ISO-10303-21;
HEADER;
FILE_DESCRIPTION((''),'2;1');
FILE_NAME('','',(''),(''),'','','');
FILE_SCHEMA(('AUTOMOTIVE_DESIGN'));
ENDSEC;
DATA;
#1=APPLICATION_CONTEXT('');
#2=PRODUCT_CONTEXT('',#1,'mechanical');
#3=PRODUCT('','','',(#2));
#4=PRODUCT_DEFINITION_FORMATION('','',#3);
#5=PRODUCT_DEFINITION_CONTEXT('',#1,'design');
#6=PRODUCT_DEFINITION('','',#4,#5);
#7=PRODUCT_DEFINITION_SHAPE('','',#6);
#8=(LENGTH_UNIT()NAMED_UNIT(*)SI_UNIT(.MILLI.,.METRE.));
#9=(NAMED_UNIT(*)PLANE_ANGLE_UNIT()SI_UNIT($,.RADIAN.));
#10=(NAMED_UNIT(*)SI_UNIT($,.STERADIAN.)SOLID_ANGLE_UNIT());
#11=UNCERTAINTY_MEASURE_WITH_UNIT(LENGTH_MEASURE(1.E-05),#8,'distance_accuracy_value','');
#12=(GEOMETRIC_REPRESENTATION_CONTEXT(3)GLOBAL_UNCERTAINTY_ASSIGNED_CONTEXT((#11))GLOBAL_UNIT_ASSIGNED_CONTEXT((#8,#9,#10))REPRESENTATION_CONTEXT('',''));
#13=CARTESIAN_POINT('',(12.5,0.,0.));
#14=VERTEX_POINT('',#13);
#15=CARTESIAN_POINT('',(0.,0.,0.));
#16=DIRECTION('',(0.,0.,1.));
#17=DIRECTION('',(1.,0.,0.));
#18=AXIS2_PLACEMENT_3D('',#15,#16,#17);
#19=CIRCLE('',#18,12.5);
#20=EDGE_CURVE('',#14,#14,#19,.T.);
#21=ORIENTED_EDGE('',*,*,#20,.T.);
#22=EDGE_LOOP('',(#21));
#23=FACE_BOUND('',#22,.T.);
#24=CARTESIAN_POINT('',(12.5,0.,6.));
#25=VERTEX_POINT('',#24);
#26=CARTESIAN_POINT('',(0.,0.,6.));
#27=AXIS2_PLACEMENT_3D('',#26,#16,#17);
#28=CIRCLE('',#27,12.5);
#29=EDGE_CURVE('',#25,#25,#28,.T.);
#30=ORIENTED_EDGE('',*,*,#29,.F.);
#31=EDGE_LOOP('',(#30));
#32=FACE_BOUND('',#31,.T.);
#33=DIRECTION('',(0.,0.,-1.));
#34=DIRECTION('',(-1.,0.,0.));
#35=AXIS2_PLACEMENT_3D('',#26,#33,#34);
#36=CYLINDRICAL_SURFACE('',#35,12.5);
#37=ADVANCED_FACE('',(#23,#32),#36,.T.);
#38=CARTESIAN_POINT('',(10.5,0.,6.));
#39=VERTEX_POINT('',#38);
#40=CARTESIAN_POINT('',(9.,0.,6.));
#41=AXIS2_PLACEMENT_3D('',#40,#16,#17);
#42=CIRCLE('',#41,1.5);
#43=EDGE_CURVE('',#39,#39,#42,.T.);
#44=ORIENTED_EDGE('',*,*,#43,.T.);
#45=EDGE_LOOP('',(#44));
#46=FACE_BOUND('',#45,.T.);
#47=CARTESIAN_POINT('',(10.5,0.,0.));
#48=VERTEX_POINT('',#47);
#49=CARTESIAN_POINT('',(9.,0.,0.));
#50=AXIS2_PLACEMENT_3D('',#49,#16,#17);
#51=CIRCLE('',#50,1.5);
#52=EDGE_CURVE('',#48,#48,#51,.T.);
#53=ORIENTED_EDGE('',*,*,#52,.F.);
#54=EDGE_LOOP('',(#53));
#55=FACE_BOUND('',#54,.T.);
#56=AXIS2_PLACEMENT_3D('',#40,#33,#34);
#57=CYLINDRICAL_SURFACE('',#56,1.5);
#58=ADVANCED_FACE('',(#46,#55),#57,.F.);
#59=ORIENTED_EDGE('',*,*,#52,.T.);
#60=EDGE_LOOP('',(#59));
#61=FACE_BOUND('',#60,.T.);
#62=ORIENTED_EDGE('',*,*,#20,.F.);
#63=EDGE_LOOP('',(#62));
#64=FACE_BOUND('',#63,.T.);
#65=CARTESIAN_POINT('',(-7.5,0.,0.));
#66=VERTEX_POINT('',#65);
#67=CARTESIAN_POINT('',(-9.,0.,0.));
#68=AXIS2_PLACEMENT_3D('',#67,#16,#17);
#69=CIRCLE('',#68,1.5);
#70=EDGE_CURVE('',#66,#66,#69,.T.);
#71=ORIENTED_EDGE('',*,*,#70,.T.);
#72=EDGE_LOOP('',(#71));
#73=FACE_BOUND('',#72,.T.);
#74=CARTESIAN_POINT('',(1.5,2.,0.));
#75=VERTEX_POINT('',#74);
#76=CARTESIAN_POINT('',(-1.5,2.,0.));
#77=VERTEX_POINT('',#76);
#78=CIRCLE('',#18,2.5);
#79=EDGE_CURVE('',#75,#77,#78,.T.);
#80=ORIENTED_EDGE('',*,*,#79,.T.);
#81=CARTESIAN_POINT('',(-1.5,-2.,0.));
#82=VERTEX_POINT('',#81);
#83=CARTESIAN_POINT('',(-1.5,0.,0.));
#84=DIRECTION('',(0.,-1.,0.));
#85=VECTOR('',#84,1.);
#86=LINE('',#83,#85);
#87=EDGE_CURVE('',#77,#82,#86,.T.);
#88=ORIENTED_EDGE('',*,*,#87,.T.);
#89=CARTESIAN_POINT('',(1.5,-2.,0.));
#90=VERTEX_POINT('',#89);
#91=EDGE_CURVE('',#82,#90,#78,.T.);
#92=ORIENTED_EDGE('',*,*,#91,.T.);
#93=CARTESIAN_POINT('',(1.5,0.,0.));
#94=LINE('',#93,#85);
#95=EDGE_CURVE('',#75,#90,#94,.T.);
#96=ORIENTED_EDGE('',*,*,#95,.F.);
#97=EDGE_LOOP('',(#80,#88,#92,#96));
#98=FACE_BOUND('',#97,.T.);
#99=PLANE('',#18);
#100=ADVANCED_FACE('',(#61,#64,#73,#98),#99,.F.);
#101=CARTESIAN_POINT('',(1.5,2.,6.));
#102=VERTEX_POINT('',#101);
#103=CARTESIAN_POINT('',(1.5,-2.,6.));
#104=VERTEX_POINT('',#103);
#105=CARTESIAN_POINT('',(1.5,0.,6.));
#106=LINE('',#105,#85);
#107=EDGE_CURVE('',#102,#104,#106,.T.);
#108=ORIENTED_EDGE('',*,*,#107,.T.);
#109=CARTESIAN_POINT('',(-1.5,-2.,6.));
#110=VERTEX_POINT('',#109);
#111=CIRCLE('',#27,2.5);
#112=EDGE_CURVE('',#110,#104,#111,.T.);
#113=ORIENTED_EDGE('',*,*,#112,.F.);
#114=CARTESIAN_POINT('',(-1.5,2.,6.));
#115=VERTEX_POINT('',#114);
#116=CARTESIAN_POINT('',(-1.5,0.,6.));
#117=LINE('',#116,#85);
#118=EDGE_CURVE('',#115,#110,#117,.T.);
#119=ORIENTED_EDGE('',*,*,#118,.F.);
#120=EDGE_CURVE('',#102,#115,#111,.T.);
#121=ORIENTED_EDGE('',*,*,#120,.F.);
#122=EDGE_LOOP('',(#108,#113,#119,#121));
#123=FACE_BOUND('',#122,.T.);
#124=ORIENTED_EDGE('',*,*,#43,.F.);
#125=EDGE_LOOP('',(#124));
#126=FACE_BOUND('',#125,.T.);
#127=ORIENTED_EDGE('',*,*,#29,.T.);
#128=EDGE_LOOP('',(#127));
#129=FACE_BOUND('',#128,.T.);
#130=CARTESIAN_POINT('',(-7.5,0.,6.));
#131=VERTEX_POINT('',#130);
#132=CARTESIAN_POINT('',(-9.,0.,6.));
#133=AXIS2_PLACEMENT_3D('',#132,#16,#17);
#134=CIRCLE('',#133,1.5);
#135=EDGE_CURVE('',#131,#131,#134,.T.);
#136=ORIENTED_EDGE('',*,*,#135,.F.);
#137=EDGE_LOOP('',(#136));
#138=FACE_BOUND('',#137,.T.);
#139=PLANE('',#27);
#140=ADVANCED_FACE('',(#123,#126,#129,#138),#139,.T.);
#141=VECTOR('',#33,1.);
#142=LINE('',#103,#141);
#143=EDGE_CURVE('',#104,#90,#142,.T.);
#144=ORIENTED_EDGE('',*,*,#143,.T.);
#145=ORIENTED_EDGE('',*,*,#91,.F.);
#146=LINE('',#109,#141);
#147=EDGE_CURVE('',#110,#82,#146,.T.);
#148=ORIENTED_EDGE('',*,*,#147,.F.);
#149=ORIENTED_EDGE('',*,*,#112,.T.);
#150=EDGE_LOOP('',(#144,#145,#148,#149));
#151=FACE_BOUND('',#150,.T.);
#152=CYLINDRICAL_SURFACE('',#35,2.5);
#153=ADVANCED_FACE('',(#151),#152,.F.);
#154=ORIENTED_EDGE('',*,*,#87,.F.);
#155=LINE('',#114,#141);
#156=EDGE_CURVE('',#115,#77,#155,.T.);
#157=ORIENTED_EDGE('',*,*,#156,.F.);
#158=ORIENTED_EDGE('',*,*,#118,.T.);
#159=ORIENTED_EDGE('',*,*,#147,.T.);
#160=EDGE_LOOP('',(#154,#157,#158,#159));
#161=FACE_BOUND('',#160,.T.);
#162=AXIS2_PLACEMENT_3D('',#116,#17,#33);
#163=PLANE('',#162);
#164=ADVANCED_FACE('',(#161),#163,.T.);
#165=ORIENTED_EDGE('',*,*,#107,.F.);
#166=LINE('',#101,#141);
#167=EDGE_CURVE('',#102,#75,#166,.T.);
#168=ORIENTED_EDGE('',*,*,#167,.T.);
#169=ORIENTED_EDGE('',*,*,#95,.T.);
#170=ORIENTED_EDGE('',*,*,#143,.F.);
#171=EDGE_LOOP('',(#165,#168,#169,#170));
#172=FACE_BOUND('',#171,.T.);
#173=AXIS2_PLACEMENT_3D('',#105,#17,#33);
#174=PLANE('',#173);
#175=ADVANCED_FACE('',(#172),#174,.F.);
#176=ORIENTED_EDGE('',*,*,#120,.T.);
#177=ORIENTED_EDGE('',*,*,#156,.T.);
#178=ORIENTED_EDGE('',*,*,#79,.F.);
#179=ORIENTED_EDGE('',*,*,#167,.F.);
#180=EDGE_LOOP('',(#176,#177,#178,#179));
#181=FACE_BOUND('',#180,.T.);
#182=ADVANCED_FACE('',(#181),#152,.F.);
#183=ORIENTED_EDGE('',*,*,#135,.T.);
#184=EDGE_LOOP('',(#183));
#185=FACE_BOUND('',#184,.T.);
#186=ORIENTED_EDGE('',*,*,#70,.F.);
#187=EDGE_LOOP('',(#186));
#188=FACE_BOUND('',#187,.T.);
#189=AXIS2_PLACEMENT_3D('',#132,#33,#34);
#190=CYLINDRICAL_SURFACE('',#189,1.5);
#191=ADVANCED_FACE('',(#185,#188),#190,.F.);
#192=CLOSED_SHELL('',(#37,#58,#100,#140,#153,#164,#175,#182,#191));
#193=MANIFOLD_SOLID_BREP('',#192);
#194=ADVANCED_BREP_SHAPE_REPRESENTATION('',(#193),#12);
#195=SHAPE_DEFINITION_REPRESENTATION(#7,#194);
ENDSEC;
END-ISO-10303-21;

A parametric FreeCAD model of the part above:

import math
import FreeCAD as App
import Part
import Sketcher

V = App.Vector
Q = App.Units.Quantity

doc = App.newDocument("Part")
body = doc.addObject("PartDesign::Body", "Body")

# Sketch on XY plane
sketch1 = body.newObject("Sketcher::SketchObject", "Sketch")
sketch1.AttachmentSupport = (doc.getObject("XY_Plane"), [""])
sketch1.MapMode = "FlatFace"
sketch1.addGeometry([
    Part.Circle(V(0, 0, 0), V(0, 0, 1), 12.5),  # 0
    Part.Circle(V(-9, 0, 0), V(0, 0, 1), 1.5),  # 1
    Part.ArcOfCircle(Part.Circle(V(0, 0, 0), V(0, 0, 1), 2.5), math.radians(-126.869898), math.radians(-53.130102)),  # 2
    Part.LineSegment(V(-1.5, -2, 0), V(-1.5, 2, 0)),  # 3
    Part.ArcOfCircle(Part.Circle(V(0, 0, 0), V(0, 0, 1), 2.5), math.radians(53.130102), math.radians(126.869898)),  # 4
    Part.LineSegment(V(1.5, 2, 0), V(1.5, -2, 0)),  # 5
    Part.Circle(V(9, 0, 0), V(0, 0, 1), 1.5),  # 6
], False)
sketch1.addConstraint([
    Sketcher.Constraint("Coincident", 2, 1, 3, 1),
    Sketcher.Constraint("Coincident", 3, 2, 4, 2),
    Sketcher.Constraint("Coincident", 4, 1, 5, 1),
    Sketcher.Constraint("Coincident", 5, 2, 2, 2),
    Sketcher.Constraint("Vertical", 3),
    Sketcher.Constraint("Vertical", 5),
    Sketcher.Constraint("Coincident", 0, 3, -1, 1),
    Sketcher.Constraint("Coincident", 2, 3, -1, 1),
    Sketcher.Constraint("Coincident", 4, 3, -1, 1),
    Sketcher.Constraint("Equal", 2, 4),
    Sketcher.Constraint("Equal", 1, 6),
    Sketcher.Constraint("Symmetric", 1, 3, 6, 3, -1, 1),
    Sketcher.Constraint("PointOnObject", 1, 3, -1),
    Sketcher.Constraint("Horizontal", 3, 2, 4, 1),
    Sketcher.Constraint("Diameter", 0, Q("25 mm")),
    Sketcher.Constraint("Diameter", 1, Q("3 mm")),
    Sketcher.Constraint("Radius", 2, Q("2.5 mm")),
    Sketcher.Constraint("DistanceY", 3, 1, 3, 2, Q("4 mm")),
    Sketcher.Constraint("DistanceX", 1, 3, -1, 1, Q("9 mm")),
])
pad1 = body.newObject("PartDesign::Pad", "Pad")
pad1.Profile = sketch1
pad1.Length = 6

doc.recompute()
